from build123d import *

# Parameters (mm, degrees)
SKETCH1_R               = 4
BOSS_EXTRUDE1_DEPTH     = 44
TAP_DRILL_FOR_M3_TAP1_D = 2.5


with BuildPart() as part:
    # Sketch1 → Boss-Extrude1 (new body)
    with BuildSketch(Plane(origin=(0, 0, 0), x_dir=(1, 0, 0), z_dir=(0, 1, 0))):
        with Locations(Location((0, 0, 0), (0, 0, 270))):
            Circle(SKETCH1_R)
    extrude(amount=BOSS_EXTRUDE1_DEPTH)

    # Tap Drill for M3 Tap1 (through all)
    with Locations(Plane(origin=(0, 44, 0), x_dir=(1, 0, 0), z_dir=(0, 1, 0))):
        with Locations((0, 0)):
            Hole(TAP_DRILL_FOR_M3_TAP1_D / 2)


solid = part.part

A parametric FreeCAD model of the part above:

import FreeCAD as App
import Part
import Sketcher
from FreeCAD import Vector

doc = App.newDocument("Part")
body = doc.addObject("PartDesign::Body", "Body")

# Sketch on XZ plane
sketch1 = doc.addObject("Sketcher::SketchObject", "Sketch")
body.addObject(sketch1)
sketch1.AttachmentSupport = (doc.XZ_Plane, [""])
sketch1.MapMode = "FlatFace"
sketch1.addGeometry(Part.Circle(Vector(0, 0, 0), Vector(0, 0, 1), 4), False)
sketch1.addConstraint([
    Sketcher.Constraint("Coincident", 0, 3, -1, 1),
    Sketcher.Constraint("Diameter", 0, 8.0),
])
pad1 = doc.addObject("PartDesign::Pad", "Pad")
body.addObject(pad1)
pad1.Profile = sketch1
pad1.Length = 44
pad1.Reversed = True

# Sketch on XZ plane
sketch2 = doc.addObject("Sketcher::SketchObject", "Sketch001")
body.addObject(sketch2)
sketch2.AttachmentSupport = (doc.XZ_Plane, [""])
sketch2.MapMode = "FlatFace"
sketch2.AttachmentOffset = App.Placement(Vector(0, 0, -44), App.Rotation())
sketch2.addGeometry(Part.Circle(Vector(0, 0, 0), Vector(0, 0, 1), 1.2), False)
sketch2.addConstraint([
    Sketcher.Constraint("Coincident", 0, 3, -1, 1),
    Sketcher.Constraint("Diameter", 0, 2.5),
])
doc.recompute()
hole = doc.addObject("PartDesign::Hole", "Hole")
body.addObject(hole)
hole.Profile = sketch2
hole.ThreadType = "None"
hole.Diameter = 2.5
hole.DepthType = "ThroughAll"
hole.Reversed = True

doc.recompute()
